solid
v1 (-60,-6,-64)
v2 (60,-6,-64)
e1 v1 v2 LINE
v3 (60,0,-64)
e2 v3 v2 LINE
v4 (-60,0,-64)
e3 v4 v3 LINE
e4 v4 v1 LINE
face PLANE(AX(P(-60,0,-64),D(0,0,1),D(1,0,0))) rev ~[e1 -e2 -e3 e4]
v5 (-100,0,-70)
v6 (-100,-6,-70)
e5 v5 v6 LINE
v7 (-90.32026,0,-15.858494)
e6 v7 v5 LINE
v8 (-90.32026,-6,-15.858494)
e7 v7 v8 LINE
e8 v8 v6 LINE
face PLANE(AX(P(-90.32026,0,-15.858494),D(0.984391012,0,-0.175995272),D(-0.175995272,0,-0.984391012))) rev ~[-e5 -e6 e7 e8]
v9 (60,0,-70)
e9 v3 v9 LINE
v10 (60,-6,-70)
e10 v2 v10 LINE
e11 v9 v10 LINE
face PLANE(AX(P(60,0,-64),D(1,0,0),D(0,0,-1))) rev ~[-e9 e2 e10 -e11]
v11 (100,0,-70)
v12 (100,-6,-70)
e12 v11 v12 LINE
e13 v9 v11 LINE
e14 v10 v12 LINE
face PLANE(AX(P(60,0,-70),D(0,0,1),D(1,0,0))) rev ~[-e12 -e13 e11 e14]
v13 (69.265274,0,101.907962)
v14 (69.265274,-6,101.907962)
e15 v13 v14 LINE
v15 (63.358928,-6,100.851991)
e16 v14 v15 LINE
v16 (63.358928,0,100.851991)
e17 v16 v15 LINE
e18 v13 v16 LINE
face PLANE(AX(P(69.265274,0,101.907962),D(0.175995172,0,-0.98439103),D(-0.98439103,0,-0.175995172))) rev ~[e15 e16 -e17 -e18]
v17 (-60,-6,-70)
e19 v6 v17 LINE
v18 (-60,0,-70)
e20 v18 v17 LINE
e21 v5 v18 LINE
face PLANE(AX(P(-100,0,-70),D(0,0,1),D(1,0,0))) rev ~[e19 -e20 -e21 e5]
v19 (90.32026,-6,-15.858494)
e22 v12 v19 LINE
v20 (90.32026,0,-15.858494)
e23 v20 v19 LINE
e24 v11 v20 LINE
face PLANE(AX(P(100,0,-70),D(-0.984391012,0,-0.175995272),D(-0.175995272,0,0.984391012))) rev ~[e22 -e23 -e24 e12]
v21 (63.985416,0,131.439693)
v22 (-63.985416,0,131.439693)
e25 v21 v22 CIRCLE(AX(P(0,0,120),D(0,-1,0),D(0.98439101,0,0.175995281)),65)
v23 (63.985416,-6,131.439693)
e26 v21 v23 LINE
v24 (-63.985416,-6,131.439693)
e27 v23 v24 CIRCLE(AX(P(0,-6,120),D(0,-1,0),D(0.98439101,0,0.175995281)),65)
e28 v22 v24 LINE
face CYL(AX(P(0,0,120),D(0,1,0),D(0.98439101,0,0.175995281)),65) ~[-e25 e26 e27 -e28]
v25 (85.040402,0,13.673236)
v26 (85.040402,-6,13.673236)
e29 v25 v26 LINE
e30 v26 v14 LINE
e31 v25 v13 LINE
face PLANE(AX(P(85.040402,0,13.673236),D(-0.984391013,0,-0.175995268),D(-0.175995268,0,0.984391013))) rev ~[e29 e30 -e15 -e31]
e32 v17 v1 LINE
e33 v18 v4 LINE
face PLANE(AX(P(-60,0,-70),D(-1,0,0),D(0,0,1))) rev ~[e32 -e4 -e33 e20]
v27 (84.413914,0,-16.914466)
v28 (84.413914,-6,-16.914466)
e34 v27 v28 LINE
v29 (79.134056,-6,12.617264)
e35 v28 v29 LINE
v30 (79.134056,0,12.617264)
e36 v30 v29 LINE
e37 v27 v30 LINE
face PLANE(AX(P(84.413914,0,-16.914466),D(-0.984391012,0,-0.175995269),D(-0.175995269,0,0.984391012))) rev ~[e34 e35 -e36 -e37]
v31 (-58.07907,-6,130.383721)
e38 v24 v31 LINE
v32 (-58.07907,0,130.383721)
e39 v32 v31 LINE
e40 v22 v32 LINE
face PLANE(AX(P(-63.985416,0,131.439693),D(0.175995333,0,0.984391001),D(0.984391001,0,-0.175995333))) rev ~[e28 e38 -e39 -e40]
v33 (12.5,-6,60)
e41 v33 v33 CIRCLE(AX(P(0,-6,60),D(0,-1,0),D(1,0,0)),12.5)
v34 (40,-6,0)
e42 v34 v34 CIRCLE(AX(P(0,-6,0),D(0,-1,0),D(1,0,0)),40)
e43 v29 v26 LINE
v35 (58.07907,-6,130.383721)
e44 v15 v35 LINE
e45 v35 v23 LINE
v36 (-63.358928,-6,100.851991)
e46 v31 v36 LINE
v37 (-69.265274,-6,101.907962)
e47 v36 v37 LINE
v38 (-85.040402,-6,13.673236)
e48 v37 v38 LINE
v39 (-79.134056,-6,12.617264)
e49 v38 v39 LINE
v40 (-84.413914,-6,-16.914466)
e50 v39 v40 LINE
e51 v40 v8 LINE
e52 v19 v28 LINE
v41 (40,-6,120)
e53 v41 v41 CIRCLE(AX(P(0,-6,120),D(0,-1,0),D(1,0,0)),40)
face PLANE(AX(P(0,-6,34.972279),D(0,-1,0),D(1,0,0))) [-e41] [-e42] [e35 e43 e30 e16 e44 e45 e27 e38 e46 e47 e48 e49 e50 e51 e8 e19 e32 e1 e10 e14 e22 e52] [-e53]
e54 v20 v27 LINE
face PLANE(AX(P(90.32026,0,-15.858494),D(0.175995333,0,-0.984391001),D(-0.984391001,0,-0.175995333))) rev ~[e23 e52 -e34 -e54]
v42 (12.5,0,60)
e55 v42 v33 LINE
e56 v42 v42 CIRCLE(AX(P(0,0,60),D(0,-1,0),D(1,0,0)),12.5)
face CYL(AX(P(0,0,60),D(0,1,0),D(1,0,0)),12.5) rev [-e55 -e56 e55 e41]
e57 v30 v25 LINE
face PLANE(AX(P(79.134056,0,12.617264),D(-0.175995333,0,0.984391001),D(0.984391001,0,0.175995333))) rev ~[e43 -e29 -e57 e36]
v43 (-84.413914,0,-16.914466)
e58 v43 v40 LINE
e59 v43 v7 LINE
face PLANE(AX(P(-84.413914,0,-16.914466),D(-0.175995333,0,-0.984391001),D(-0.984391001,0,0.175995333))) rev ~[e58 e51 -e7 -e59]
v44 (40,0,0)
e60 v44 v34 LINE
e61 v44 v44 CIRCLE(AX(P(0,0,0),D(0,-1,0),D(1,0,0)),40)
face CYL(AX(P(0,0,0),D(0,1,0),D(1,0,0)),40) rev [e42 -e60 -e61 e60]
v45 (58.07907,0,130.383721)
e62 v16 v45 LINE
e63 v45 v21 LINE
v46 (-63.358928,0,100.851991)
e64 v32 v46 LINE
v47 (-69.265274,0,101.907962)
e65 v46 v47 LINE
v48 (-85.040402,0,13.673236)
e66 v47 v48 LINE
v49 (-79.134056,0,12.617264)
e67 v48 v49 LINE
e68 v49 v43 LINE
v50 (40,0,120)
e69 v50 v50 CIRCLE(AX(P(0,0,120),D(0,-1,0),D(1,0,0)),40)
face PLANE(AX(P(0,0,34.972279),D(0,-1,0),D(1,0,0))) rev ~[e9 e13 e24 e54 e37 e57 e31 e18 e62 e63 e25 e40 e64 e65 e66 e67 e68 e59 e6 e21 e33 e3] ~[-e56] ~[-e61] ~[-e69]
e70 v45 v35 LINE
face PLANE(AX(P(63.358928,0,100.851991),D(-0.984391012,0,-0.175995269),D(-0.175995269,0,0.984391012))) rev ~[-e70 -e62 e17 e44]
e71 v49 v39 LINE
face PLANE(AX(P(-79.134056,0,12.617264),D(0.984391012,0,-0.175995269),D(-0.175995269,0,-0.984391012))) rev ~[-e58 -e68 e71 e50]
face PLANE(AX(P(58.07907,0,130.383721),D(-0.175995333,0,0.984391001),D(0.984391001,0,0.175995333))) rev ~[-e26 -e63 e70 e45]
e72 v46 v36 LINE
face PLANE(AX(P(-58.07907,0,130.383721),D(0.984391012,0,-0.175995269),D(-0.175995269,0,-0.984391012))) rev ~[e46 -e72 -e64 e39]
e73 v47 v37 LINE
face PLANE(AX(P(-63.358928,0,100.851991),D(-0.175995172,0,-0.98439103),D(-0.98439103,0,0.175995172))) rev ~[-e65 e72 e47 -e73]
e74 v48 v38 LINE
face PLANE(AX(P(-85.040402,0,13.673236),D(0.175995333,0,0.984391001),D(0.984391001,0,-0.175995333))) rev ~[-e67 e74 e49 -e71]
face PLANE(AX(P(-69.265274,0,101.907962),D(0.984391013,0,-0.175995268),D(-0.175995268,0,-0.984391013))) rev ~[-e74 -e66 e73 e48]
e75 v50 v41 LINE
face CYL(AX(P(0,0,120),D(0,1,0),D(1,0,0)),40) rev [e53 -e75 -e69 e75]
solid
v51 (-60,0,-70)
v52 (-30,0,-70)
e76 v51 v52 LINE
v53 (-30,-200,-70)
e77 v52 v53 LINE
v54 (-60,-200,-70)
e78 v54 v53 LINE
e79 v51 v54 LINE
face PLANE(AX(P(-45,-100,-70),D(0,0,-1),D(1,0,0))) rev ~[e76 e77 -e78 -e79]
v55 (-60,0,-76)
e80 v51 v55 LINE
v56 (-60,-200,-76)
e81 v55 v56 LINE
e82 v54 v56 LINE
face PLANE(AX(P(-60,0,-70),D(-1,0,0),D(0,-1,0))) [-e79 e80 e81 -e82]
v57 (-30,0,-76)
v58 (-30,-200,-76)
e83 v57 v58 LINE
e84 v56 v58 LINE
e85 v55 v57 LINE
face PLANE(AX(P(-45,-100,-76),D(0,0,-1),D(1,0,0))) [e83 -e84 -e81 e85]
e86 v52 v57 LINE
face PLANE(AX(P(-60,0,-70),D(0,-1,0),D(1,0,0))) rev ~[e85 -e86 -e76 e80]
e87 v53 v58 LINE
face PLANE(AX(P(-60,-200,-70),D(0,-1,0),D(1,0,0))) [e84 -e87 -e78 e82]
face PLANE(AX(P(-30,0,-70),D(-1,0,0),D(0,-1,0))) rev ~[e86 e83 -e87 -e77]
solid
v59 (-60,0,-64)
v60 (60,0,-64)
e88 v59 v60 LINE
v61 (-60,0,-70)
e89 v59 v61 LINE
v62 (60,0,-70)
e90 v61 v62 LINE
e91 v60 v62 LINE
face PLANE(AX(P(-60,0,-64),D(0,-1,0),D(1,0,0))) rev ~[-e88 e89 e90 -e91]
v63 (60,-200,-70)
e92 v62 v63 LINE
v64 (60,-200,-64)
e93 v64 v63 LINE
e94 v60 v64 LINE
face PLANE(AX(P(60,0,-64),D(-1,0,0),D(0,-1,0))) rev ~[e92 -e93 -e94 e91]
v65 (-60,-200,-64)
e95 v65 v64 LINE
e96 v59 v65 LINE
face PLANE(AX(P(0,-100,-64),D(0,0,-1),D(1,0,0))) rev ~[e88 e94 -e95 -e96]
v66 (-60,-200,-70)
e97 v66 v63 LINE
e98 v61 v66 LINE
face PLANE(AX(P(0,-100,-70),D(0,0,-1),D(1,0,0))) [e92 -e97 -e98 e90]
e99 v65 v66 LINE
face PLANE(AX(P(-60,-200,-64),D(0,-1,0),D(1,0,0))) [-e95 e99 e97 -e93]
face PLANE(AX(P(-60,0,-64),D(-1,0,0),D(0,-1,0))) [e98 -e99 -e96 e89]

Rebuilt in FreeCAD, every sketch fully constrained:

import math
import FreeCAD as App
import Part
import Sketcher
Q = App.Units.Quantity


def add_polygon(sketch, points):
    """Adds a closed chain of lines whose ends are joined by coincident constraints."""
    first, n = sketch.GeometryCount, len(points)
    for a, b in zip(points, points[1:] + points[:1]):
        sketch.addGeometry(Part.LineSegment(App.Vector(*a, 0), App.Vector(*b, 0)), False)
    for i in range(n):
        sketch.addConstraint(Sketcher.Constraint("Coincident", first + i, 2, first + (i + 1) % n, 1))

doc = App.newDocument("Part")
body = doc.addObject("PartDesign::Body", "Body")

sketch1 = body.newObject("Sketcher::SketchObject", "Sketch")
sketch1.AttachmentSupport = (doc.getObject("XZ_Plane"), [""])
sketch1.MapMode = "FlatFace"
sketch1.addGeometry([
    Part.LineSegment(App.Vector(-90.32026, -15.858494, 0), App.Vector(-100, -70, 0)),
    Part.LineSegment(App.Vector(-100, -70, 0), App.Vector(-60, -70, 0)),
    Part.LineSegment(App.Vector(-60, -70, 0), App.Vector(-60, -64, 0)),
    Part.LineSegment(App.Vector(-60, -64, 0), App.Vector(60, -64, 0)),
    Part.LineSegment(App.Vector(60, -64, 0), App.Vector(60, -70, 0)),
    Part.LineSegment(App.Vector(60, -70, 0), App.Vector(100, -70, 0)),
    Part.LineSegment(App.Vector(100, -70, 0), App.Vector(90.32026, -15.858494, 0)),
    Part.LineSegment(App.Vector(90.32026, -15.858494, 0), App.Vector(84.413914, -16.914466, 0)),
    Part.LineSegment(App.Vector(84.413914, -16.914466, 0), App.Vector(79.134056, 12.617264, 0)),
    Part.LineSegment(App.Vector(79.134056, 12.617264, 0), App.Vector(85.040402, 13.673236, 0)),
    Part.LineSegment(App.Vector(85.040402, 13.673236, 0), App.Vector(69.265274, 101.907962, 0)),
    Part.LineSegment(App.Vector(69.265274, 101.907962, 0), App.Vector(63.358928, 100.851991, 0)),
    Part.LineSegment(App.Vector(63.358928, 100.851991, 0), App.Vector(58.07907, 130.383721, 0)),
    Part.LineSegment(App.Vector(58.07907, 130.383721, 0), App.Vector(63.985416, 131.439693, 0)),
    Part.ArcOfCircle(Part.Circle(App.Vector(0, 120, 0), App.Vector(0, 0, 1), 65), math.radians(10.136583), math.radians(169.863417)),
    Part.LineSegment(App.Vector(-63.985416, 131.439693, 0), App.Vector(-58.07907, 130.383721, 0)),
    Part.LineSegment(App.Vector(-58.07907, 130.383721, 0), App.Vector(-63.358928, 100.851991, 0)),
    Part.LineSegment(App.Vector(-63.358928, 100.851991, 0), App.Vector(-69.265274, 101.907962, 0)),
    Part.LineSegment(App.Vector(-69.265274, 101.907962, 0), App.Vector(-85.040402, 13.673236, 0)),
    Part.LineSegment(App.Vector(-85.040402, 13.673236, 0), App.Vector(-79.134056, 12.617264, 0)),
    Part.LineSegment(App.Vector(-79.134056, 12.617264, 0), App.Vector(-84.413914, -16.914466, 0)),
    Part.LineSegment(App.Vector(-84.413914, -16.914466, 0), App.Vector(-90.32026, -15.858494, 0)),
    Part.Circle(App.Vector(0, 0, 0), App.Vector(0, 0, 1), 40),
    Part.Circle(App.Vector(0, 60, 0), App.Vector(0, 0, 1), 12.5),
    Part.Circle(App.Vector(0, 120, 0), App.Vector(0, 0, 1), 40),
], False)
sketch1.addConstraint([
    Sketcher.Constraint("Coincident", 0, 2, 1, 1),
    Sketcher.Constraint("Coincident", 1, 2, 2, 1),
    Sketcher.Constraint("Coincident", 2, 2, 3, 1),
    Sketcher.Constraint("Coincident", 3, 2, 4, 1),
    Sketcher.Constraint("Coincident", 4, 2, 5, 1),
    Sketcher.Constraint("Coincident", 5, 2, 6, 1),
    Sketcher.Constraint("Coincident", 6, 2, 7, 1),
    Sketcher.Constraint("Coincident", 7, 2, 8, 1),
    Sketcher.Constraint("Coincident", 8, 2, 9, 1),
    Sketcher.Constraint("Coincident", 9, 2, 10, 1),
    Sketcher.Constraint("Coincident", 10, 2, 11, 1),
    Sketcher.Constraint("Coincident", 11, 2, 12, 1),
    Sketcher.Constraint("Coincident", 12, 2, 13, 1),
    Sketcher.Constraint("Coincident", 13, 2, 14, 1),
    Sketcher.Constraint("Coincident", 14, 2, 15, 1),
    Sketcher.Constraint("Coincident", 15, 2, 16, 1),
    Sketcher.Constraint("Coincident", 16, 2, 17, 1),
    Sketcher.Constraint("Coincident", 17, 2, 18, 1),
    Sketcher.Constraint("Coincident", 18, 2, 19, 1),
    Sketcher.Constraint("Coincident", 19, 2, 20, 1),
    Sketcher.Constraint("Coincident", 20, 2, 21, 1),
    Sketcher.Constraint("Coincident", 21, 2, 0, 1),
    Sketcher.Constraint("Horizontal", 1),
    Sketcher.Constraint("Vertical", 2),
    Sketcher.Constraint("Horizontal", 3),
    Sketcher.Constraint("Vertical", 4),
    Sketcher.Constraint("Horizontal", 5),
    Sketcher.Constraint("Coincident", 22, 3, -1, 1),
    Sketcher.Constraint("Coincident", 24, 3, 14, 3),
    Sketcher.Constraint("Equal", 22, 24),
    Sketcher.Constraint("Symmetric", 1, 2, 4, 2, -2),
    Sketcher.Constraint("Symmetric", 13, 2, 14, 2, -2),
    Sketcher.Constraint("Symmetric", 12, 2, 15, 2, -2),
    Sketcher.Constraint("Symmetric", 11, 2, 16, 2, -2),
    Sketcher.Constraint("Symmetric", 10, 2, 17, 2, -2),
    Sketcher.Constraint("Symmetric", 9, 2, 18, 2, -2),
    Sketcher.Constraint("Symmetric", 8, 2, 19, 2, -2),
    Sketcher.Constraint("Symmetric", 7, 2, 20, 2, -2),
    Sketcher.Constraint("Symmetric", 6, 2, 21, 2, -2),
    Sketcher.Constraint("PointOnObject", 23, 3, -2),
    Sketcher.Constraint("Perpendicular", 6, 7),
    Sketcher.Constraint("Perpendicular", 7, 8),
    Sketcher.Constraint("Perpendicular", 8, 9),
    Sketcher.Constraint("Perpendicular", 9, 10),
    Sketcher.Constraint("Perpendicular", 10, 11),
    Sketcher.Constraint("Perpendicular", 11, 12),
    Sketcher.Constraint("Perpendicular", 12, 13),
    Sketcher.Constraint("Perpendicular", 0, 15),
    Sketcher.Constraint("Equal", 7, 9),
    Sketcher.Constraint("Equal", 9, 11),
    Sketcher.Constraint("Equal", 8, 12),
    Sketcher.Constraint("Equal", 11, 13),
    Sketcher.Constraint("Diameter", 22, Q("80 mm")),
    Sketcher.Constraint("Diameter", 23, Q("25 mm")),
    Sketcher.Constraint("Radius", 14, Q("65 mm")),
    Sketcher.Constraint("DistanceX", 1, 1, 1, 2, Q("40 mm")),
    Sketcher.Constraint("DistanceX", 3, 1, 3, 2, Q("120 mm")),
    Sketcher.Constraint("DistanceY", 2, 1, 2, 2, Q("6 mm")),
    Sketcher.Constraint("Distance", 0, Q("55 mm")),
    Sketcher.Constraint("Distance", 7, Q("6 mm")),
    Sketcher.Constraint("Distance", 8, Q("30 mm")),
    Sketcher.Constraint("DistanceY", -1, 1, 14, 3, Q("120 mm")),
    Sketcher.Constraint("DistanceY", -1, 1, 23, 3, Q("60 mm")),
    Sketcher.Constraint("DistanceY", 0, 2, -1, 1, Q("70 mm")),
    Sketcher.Constraint("Distance", 10, Q("89.633819 mm")),
])
pad1 = body.newObject("PartDesign::Pad", "Pad")
pad1.Profile = sketch1
pad1.Length = 6
body2 = doc.addObject("PartDesign::Body", "Body001")

sketch2 = body2.newObject("Sketcher::SketchObject", "Sketch001")
sketch2.AttachmentSupport = (doc.getObject("XY_Plane001"), [""])
sketch2.MapMode = "FlatFace"
sketch2.AttachmentOffset = App.Placement(App.Vector(0, 0, -64), App.Rotation())
add_polygon(sketch2, [(-60, -200), (-60, 0), (60, 0), (60, -200)])
sketch2.addConstraint([
    Sketcher.Constraint("Vertical", 0),
    Sketcher.Constraint("Horizontal", 1),
    Sketcher.Constraint("Vertical", 2),
    Sketcher.Constraint("Horizontal", 3),
    Sketcher.Constraint("Symmetric", 0, 2, 1, 2, -1, 1),
    Sketcher.Constraint("DistanceX", 1, 1, 1, 2, Q("120 mm")),
    Sketcher.Constraint("DistanceY", 0, 1, 0, 2, Q("200 mm")),
])
pad2 = body2.newObject("PartDesign::Pad", "Pad001")
pad2.Profile = sketch2
pad2.Length = 6
pad2.Reversed = True
body3 = doc.addObject("PartDesign::Body", "Body002")

sketch3 = body3.newObject("Sketcher::SketchObject", "Sketch002")
sketch3.AttachmentSupport = (doc.getObject("XY_Plane002"), [""])
sketch3.MapMode = "FlatFace"
sketch3.AttachmentOffset = App.Placement(App.Vector(0, 0, -70), App.Rotation())
add_polygon(sketch3, [(-60, -200), (-60, 0), (-30, 0), (-30, -200)])
sketch3.addConstraint([
    Sketcher.Constraint("Vertical", 0),
    Sketcher.Constraint("Horizontal", 1),
    Sketcher.Constraint("Vertical", 2),
    Sketcher.Constraint("Horizontal", 3),
    Sketcher.Constraint("PointOnObject", 0, 2, -1),
    Sketcher.Constraint("DistanceX", 1, 1, 1, 2, Q("30 mm")),
    Sketcher.Constraint("DistanceY", 0, 1, 0, 2, Q("200 mm")),
    Sketcher.Constraint("DistanceX", 0, 2, -1, 1, Q("60 mm")),
])
pad3 = body3.newObject("PartDesign::Pad", "Pad002")
pad3.Profile = sketch3
pad3.Length = 6
pad3.Reversed = True

doc.recompute()
